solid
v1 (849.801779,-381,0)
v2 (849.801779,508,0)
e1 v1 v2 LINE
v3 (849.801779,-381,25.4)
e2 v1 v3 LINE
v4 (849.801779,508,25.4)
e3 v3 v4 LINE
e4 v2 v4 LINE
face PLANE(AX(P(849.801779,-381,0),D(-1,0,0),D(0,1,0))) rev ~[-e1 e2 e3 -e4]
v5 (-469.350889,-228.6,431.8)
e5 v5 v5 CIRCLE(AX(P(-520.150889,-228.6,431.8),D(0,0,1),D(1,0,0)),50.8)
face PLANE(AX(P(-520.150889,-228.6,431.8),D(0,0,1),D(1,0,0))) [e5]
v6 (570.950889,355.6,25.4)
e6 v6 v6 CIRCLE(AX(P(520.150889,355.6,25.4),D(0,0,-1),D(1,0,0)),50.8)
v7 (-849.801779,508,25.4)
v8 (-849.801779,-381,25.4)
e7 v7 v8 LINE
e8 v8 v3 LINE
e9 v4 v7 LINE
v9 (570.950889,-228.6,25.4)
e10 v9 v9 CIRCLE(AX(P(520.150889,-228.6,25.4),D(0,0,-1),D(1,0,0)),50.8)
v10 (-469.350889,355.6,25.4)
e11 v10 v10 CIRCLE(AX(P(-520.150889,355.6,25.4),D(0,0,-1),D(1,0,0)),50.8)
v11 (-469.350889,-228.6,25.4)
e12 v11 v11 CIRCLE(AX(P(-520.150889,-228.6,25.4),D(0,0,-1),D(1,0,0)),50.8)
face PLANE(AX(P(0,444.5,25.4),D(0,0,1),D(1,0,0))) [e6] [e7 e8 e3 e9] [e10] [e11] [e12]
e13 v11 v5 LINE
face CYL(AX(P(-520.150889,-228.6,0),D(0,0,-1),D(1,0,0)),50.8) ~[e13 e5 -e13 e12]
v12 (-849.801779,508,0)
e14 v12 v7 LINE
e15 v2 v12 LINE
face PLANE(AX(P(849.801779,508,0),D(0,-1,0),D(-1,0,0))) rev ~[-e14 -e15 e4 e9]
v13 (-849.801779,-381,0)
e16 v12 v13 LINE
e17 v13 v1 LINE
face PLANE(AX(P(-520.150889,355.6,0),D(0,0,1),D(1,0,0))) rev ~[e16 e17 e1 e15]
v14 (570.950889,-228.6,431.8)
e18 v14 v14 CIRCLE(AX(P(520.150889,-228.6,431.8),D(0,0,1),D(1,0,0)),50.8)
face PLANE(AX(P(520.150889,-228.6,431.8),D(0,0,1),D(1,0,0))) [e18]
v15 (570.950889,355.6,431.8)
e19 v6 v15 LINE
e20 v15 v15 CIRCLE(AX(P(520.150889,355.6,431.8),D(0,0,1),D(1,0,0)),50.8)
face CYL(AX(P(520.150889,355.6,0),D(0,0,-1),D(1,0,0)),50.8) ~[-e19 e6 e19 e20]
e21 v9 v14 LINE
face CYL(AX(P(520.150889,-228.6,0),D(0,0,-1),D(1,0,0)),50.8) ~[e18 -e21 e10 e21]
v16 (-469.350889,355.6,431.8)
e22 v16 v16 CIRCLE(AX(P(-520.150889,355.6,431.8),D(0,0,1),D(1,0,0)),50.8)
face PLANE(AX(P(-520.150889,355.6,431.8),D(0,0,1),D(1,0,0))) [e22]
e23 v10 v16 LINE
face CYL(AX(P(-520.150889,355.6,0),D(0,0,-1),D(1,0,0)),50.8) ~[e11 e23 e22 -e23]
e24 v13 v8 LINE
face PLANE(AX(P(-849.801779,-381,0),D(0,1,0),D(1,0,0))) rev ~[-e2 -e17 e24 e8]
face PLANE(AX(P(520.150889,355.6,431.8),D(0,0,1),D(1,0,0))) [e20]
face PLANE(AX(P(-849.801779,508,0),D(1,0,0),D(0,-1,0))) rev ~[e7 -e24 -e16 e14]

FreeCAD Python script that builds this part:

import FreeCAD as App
import Part
import Sketcher
Q = App.Units.Quantity

doc = App.newDocument("Part")
body = doc.addObject("PartDesign::Body", "Body")

# Sketch on XY plane
sketch1 = body.newObject("Sketcher::SketchObject", "Sketch")
sketch1.AttachmentSupport = (doc.getObject("XY_Plane"), [""])
sketch1.MapMode = "FlatFace"
sketch1.addGeometry(Part.LineSegment(App.Vector(850, -381, 0), App.Vector(850, 508, 0)), False)
sketch1.addGeometry(Part.LineSegment(App.Vector(850, 508, 0), App.Vector(-850, 508, 0)), False)
sketch1.addGeometry(Part.LineSegment(App.Vector(-850, 508, 0), App.Vector(-850, -381, 0)), False)
sketch1.addGeometry(Part.LineSegment(App.Vector(-850, -381, 0), App.Vector(850, -381, 0)), False)
sketch1.addConstraint(Sketcher.Constraint("Coincident", 0, 2, 1, 1))
sketch1.addConstraint(Sketcher.Constraint("Coincident", 1, 2, 2, 1))
sketch1.addConstraint(Sketcher.Constraint("Coincident", 2, 2, 3, 1))
sketch1.addConstraint(Sketcher.Constraint("Coincident", 3, 2, 0, 1))
sketch1.addConstraint(Sketcher.Constraint("Vertical", 0))
sketch1.addConstraint(Sketcher.Constraint("Horizontal", 1))
sketch1.addConstraint(Sketcher.Constraint("Vertical", 2))
sketch1.addConstraint(Sketcher.Constraint("Horizontal", 3))
sketch1.addConstraint(Sketcher.Constraint("DistanceY", 0, 1, 0, 2, Q("35 in")))
sketch1.addConstraint(Sketcher.Constraint("DistanceY", -1, 1, 0, 2, Q("20 in")))
sketch1.addConstraint(Sketcher.Constraint("DistanceX", 1, 2, 1, 1, 1699.603558))
sketch1.addConstraint(Sketcher.Constraint("DistanceX", -1, 1, 0, 2, 849.801779))
pad1 = body.newObject("PartDesign::Pad", "Pad")
pad1.Profile = sketch1
pad1.Length = Q("1 in")

# Sketch on XY plane
sketch2 = body.newObject("Sketcher::SketchObject", "Sketch001")
sketch2.AttachmentSupport = (doc.getObject("XY_Plane"), [""])
sketch2.MapMode = "FlatFace"
sketch2.addGeometry(Part.Circle(App.Vector(-520, 356, 0), App.Vector(0, 0, 1), 51), False)
sketch2.addGeometry(Part.Circle(App.Vector(520, 356, 0), App.Vector(0, 0, 1), 51), False)
sketch2.addGeometry(Part.Circle(App.Vector(520, -229, 0), App.Vector(0, 0, 1), 51), False)
sketch2.addGeometry(Part.Circle(App.Vector(-520, -229, 0), App.Vector(0, 0, 1), 51), False)
sketch2.addConstraint(Sketcher.Constraint("Equal", 0, 1))
sketch2.addConstraint(Sketcher.Constraint("Equal", 1, 2))
sketch2.addConstraint(Sketcher.Constraint("Equal", 2, 3))
sketch2.addConstraint(Sketcher.Constraint("Symmetric", 0, 3, 1, 3, -2))
sketch2.addConstraint(Sketcher.Constraint("Symmetric", 2, 3, 3, 3, -2))
sketch2.addConstraint(Sketcher.Constraint("Vertical", 1, 3, 2, 3))
sketch2.addConstraint(Sketcher.Constraint("Diameter", 0, Q("4 in")))
sketch2.addConstraint(Sketcher.Constraint("DistanceY", -1, 1, 0, 3, Q("14 in")))
sketch2.addConstraint(Sketcher.Constraint("DistanceY", 2, 3, -1, 1, Q("9 in")))
sketch2.addConstraint(Sketcher.Constraint("DistanceX", 0, 3, -1, 1, 520.150889))
pad2 = body.newObject("PartDesign::Pad", "Pad001")
pad2.Profile = sketch2
pad2.Length = Q("17 in")

doc.recompute()
